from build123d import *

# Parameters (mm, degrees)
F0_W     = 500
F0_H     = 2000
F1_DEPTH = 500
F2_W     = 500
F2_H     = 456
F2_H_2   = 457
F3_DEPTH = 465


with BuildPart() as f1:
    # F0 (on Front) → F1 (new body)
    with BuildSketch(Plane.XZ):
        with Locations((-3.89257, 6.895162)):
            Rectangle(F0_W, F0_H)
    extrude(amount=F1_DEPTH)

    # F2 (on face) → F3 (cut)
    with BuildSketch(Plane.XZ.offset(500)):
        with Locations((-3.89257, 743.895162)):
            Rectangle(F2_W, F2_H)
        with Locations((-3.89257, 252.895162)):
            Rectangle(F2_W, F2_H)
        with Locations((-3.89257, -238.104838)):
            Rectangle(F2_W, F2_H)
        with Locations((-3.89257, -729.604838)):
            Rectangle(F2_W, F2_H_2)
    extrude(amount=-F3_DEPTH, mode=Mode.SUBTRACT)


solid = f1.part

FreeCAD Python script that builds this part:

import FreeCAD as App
import Part
import Sketcher
from FreeCAD import Vector
Q = App.Units.Quantity


def add_polygon(sketch, points):
    """Adds a closed chain of lines whose ends are joined by coincident constraints."""
    first, n = sketch.GeometryCount, len(points)
    for a, b in zip(points, points[1:] + points[:1]):
        sketch.addGeometry(Part.LineSegment(App.Vector(*a, 0), App.Vector(*b, 0)), False)
    for i in range(n):
        sketch.addConstraint(Sketcher.Constraint("Coincident", first + i, 2, first + (i + 1) % n, 1))

doc = App.newDocument("Part")
body = doc.addObject("PartDesign::Body", "Body")

# Sketch on XZ plane
sketch1 = body.newObject("Sketcher::SketchObject", "Sketch")
sketch1.AttachmentSupport = (doc.getObject("XZ_Plane"), [""])
sketch1.MapMode = "FlatFace"
add_polygon(sketch1, [(-254, 1007), (-254, -993), (246, -993), (246, 1007)])  # lines 0-3
sketch1.addConstraint([
    Sketcher.Constraint("Vertical", 0),
    Sketcher.Constraint("Horizontal", 1),
    Sketcher.Constraint("Vertical", 2),
    Sketcher.Constraint("Horizontal", 3),
    Sketcher.Constraint("DistanceX", 1, 1, 1, 2, Q("500 mm")),
    Sketcher.Constraint("DistanceY", 0, 2, 0, 1, Q("2000 mm")),
    Sketcher.Constraint("DistanceX", 0, 2, -1, 1, Q("253.89257 mm")),
    Sketcher.Constraint("DistanceY", 0, 2, -1, 1, Q("993.104838 mm")),
])
pad1 = body.newObject("PartDesign::Pad", "Pad")
pad1.Profile = sketch1
pad1.Length = 500

# Sketch on XZ plane
sketch2 = body.newObject("Sketcher::SketchObject", "Sketch001")
sketch2.AttachmentSupport = (doc.getObject("XZ_Plane"), [""])
sketch2.MapMode = "FlatFace"
sketch2.AttachmentOffset = App.Placement(Vector(0, 0, 500), App.Rotation())
add_polygon(sketch2, [(-254, 972), (-254, 516), (246, 516), (246, 972)])  # lines 0-3
add_polygon(sketch2, [(-254, 481), (-254, 25), (246, 25), (246, 481)])  # lines 4-7
add_polygon(sketch2, [(-254, -10), (-254, -466), (246, -466), (246, -10)])  # lines 8-11
add_polygon(sketch2, [(-254, -501), (-254, -958), (246, -958), (246, -501)])  # lines 12-15
sketch2.addConstraint([
    Sketcher.Constraint("Vertical", 0),
    Sketcher.Constraint("Horizontal", 1),
    Sketcher.Constraint("Vertical", 2),
    Sketcher.Constraint("Horizontal", 3),
    Sketcher.Constraint("Vertical", 4),
    Sketcher.Constraint("Horizontal", 5),
    Sketcher.Constraint("Vertical", 6),
    Sketcher.Constraint("Horizontal", 7),
    Sketcher.Constraint("Vertical", 8),
    Sketcher.Constraint("Horizontal", 9),
    Sketcher.Constraint("Vertical", 10),
    Sketcher.Constraint("Horizontal", 11),
    Sketcher.Constraint("Vertical", 12),
    Sketcher.Constraint("Horizontal", 13),
    Sketcher.Constraint("Vertical", 14),
    Sketcher.Constraint("Horizontal", 15),
    Sketcher.Constraint("Vertical", 3, 2, 4, 2),
    Sketcher.Constraint("Vertical", 2, 2, 5, 2),
    Sketcher.Constraint("Vertical", 7, 2, 8, 2),
    Sketcher.Constraint("Vertical", 6, 2, 9, 2),
    Sketcher.Constraint("Vertical", 11, 2, 12, 2),
    Sketcher.Constraint("Vertical", 10, 2, 13, 2),
    Sketcher.Constraint("Equal", 2, 4),
    Sketcher.Constraint("Equal", 6, 8),
    Sketcher.Constraint("DistanceX", 1, 1, 1, 2, Q("500 mm")),
    Sketcher.Constraint("DistanceY", 0, 2, 0, 1, Q("456 mm")),
    Sketcher.Constraint("DistanceY", 12, 2, 12, 1, Q("457 mm")),
    Sketcher.Constraint("DistanceY", 4, 2, 0, 2, Q("491 mm")),
    Sketcher.Constraint("DistanceY", 8, 2, 4, 2, Q("491 mm")),
    Sketcher.Constraint("DistanceY", 12, 2, 8, 2, Q("492 mm")),
    Sketcher.Constraint("DistanceX", 0, 2, -1, 1, Q("253.89257 mm")),
    Sketcher.Constraint("DistanceY", -1, 1, 0, 2, Q("515.895162 mm")),
])
pocket1 = body.newObject("PartDesign::Pocket", "Pocket")
pocket1.Profile = sketch2
pocket1.Length = 465

doc.recompute()
